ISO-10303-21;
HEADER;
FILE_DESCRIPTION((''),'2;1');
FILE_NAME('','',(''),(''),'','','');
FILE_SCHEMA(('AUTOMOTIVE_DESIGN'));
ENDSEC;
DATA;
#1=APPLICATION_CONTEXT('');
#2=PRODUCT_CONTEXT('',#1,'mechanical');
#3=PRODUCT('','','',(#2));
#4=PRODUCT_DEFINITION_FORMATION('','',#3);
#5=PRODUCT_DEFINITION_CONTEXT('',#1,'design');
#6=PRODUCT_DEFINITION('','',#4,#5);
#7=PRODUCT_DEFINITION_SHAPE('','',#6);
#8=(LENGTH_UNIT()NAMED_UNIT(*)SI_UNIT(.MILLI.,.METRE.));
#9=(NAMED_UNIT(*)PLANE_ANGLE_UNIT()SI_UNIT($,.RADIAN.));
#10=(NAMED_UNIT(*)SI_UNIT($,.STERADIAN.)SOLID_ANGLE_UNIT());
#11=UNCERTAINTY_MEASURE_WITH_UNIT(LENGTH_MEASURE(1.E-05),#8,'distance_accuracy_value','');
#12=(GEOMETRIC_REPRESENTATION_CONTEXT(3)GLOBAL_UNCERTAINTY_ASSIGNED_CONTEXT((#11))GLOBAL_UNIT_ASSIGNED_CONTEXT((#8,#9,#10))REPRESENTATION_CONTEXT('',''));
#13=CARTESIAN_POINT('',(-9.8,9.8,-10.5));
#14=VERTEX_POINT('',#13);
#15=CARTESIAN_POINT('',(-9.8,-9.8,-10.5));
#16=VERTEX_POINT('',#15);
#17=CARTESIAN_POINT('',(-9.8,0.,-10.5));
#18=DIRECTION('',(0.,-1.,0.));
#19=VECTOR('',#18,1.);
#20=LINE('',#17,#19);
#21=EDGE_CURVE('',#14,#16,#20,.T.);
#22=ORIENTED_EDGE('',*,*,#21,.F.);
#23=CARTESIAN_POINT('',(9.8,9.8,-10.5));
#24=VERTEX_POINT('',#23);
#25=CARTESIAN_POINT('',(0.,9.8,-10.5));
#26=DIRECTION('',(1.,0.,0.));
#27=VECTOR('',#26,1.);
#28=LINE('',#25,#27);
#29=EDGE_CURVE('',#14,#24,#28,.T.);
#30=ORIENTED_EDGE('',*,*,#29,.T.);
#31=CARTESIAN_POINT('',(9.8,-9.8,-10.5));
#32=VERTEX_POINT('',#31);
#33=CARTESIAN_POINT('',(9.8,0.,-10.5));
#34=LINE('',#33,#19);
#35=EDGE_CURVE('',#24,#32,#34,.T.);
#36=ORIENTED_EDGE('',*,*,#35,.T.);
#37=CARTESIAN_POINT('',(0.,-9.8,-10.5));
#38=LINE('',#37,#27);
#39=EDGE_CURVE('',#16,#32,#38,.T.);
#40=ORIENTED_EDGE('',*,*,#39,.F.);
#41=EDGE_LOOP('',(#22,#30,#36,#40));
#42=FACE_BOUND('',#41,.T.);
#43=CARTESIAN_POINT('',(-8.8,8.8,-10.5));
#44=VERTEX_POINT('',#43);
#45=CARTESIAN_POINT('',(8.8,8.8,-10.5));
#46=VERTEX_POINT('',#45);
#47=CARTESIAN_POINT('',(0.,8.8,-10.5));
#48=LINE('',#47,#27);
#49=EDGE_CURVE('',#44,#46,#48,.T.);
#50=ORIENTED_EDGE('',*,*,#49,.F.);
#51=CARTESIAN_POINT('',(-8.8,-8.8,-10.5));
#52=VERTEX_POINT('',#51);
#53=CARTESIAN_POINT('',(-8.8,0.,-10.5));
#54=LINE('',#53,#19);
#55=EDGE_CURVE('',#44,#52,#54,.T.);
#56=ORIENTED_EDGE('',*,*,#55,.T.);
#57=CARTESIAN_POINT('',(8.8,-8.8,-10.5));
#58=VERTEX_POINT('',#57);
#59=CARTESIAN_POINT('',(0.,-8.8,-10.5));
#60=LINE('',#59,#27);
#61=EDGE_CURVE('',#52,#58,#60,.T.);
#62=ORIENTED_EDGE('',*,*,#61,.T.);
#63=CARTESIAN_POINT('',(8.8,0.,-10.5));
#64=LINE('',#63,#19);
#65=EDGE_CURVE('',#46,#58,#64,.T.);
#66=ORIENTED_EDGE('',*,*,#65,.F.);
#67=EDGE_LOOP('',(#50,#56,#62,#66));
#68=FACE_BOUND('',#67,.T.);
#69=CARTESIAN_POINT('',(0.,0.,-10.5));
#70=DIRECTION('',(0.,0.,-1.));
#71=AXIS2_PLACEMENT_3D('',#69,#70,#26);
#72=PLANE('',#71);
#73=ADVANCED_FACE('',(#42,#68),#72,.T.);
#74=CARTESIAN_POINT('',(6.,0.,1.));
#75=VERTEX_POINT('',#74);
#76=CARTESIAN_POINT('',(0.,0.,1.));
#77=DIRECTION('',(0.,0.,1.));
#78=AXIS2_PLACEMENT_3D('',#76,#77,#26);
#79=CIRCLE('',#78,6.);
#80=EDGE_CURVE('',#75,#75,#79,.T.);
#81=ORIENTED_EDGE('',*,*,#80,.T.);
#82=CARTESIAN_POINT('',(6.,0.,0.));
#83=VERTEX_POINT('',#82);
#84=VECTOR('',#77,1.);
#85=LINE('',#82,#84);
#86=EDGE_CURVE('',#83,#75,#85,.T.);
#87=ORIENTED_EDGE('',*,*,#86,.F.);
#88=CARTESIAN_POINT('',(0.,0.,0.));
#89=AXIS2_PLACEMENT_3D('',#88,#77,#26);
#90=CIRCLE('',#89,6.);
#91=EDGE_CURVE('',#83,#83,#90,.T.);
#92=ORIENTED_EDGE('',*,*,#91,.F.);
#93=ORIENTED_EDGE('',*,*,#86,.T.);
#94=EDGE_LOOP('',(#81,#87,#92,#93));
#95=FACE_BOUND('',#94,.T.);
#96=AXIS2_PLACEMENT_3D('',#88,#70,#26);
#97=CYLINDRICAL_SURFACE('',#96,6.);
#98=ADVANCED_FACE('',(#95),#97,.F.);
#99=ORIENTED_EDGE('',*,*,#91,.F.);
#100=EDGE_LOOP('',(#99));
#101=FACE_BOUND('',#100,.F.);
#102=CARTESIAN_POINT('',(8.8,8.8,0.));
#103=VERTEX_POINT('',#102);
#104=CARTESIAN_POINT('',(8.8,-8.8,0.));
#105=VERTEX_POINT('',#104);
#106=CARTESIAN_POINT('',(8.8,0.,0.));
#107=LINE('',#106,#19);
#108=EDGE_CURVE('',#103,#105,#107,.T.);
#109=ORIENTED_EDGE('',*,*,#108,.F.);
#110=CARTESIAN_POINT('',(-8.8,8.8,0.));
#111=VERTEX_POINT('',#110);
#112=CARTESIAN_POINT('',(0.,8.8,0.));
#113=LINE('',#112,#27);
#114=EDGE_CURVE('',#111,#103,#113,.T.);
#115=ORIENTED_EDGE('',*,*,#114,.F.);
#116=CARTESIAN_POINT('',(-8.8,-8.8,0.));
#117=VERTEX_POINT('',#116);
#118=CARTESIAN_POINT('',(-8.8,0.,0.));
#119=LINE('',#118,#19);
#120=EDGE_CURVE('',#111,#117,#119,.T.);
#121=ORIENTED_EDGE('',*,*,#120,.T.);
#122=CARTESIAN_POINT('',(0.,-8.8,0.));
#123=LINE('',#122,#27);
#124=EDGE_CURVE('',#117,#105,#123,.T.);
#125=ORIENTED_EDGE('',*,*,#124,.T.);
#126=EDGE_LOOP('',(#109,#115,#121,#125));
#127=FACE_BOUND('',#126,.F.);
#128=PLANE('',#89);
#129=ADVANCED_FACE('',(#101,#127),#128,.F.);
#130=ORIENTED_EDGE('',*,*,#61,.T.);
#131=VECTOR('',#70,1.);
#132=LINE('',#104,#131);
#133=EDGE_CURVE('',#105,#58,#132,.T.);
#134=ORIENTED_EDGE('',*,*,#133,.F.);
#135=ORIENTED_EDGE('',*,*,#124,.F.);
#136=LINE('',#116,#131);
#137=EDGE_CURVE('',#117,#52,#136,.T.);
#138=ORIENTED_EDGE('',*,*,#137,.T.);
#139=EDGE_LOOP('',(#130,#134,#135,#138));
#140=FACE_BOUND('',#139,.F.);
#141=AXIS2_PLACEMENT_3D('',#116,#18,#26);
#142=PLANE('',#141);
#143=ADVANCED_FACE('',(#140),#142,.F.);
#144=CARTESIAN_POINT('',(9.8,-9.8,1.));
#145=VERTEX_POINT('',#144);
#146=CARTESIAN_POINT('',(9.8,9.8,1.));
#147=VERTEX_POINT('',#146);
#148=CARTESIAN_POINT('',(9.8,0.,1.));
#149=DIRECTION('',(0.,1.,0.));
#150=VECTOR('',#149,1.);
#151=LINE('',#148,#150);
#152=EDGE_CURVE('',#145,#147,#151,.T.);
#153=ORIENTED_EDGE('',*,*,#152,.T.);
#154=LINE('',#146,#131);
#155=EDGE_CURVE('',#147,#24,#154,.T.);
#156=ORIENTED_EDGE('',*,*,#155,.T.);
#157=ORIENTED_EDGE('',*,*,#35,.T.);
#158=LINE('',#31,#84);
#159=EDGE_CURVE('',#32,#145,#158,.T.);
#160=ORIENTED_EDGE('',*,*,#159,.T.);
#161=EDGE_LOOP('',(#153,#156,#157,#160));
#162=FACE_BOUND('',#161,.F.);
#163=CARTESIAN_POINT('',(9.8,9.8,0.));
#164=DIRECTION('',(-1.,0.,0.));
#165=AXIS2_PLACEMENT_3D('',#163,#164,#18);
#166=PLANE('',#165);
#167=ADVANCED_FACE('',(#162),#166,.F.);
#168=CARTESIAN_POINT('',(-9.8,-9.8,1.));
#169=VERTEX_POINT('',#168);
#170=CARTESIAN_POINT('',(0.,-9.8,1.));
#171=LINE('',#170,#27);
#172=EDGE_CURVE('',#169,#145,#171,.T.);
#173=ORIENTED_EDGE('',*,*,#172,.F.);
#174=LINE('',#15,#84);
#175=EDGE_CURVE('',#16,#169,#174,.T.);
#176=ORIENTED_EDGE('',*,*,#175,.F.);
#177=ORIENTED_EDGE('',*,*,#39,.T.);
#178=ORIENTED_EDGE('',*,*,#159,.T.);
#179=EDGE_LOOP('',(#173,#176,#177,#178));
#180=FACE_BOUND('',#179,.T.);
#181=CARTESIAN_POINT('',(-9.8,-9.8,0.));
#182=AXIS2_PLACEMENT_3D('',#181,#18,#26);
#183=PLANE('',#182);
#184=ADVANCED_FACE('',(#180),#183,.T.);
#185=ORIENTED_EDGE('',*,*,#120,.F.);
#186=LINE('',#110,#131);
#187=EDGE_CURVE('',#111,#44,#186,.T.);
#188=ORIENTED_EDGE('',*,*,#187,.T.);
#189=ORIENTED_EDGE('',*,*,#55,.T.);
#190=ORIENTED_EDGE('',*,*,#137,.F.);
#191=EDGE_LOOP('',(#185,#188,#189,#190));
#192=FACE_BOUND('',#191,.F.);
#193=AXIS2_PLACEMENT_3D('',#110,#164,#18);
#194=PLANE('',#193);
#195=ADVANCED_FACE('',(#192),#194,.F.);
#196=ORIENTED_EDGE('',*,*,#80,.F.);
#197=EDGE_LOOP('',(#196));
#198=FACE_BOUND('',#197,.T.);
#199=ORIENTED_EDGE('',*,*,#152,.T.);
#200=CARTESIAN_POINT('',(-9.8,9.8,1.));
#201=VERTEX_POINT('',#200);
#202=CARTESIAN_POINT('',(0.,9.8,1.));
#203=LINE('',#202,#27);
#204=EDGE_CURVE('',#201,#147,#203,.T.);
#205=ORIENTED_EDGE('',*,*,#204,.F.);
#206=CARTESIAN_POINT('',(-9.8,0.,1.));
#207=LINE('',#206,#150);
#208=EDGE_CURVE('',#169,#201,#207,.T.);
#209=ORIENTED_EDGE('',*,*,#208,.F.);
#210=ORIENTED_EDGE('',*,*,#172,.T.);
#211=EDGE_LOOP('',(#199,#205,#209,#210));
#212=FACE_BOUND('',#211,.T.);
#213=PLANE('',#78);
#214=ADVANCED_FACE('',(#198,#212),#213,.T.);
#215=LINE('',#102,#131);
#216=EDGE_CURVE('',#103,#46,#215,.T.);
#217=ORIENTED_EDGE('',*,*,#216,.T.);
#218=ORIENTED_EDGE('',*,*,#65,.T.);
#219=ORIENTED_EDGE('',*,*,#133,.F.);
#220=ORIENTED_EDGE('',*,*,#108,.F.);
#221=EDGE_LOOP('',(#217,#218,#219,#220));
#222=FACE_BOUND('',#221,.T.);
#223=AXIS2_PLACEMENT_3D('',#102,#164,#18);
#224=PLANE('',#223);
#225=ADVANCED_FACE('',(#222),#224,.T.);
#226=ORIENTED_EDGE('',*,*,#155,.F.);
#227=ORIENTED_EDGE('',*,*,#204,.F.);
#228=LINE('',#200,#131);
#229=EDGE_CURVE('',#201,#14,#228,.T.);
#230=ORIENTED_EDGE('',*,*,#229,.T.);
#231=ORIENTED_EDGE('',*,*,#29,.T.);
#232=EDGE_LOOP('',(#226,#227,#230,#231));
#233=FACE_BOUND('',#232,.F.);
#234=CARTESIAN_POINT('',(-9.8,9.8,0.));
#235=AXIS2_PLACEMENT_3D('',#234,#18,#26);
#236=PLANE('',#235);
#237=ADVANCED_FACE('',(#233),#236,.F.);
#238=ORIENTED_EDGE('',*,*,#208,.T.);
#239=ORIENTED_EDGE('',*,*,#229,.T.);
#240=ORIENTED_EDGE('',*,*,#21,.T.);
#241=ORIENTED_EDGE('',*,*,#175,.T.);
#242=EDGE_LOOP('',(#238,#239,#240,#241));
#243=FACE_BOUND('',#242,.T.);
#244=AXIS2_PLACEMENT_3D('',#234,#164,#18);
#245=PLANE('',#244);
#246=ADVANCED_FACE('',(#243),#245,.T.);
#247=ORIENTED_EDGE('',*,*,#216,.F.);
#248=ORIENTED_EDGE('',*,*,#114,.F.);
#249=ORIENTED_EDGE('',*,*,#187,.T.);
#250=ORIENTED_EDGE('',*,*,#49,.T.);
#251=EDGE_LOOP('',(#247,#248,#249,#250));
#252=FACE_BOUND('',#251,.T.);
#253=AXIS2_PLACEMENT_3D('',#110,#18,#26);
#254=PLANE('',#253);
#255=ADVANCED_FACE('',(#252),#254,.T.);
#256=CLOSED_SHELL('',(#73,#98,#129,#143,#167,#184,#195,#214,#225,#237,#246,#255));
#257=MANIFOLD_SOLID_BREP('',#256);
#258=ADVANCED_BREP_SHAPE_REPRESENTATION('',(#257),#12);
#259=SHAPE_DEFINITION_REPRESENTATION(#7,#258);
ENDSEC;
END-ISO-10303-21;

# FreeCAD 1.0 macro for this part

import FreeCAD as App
import Part
import Sketcher

V = App.Vector


def add_polygon(sketch, points):
    """Adds a closed chain of lines whose ends are joined by coincident constraints."""
    first, n = sketch.GeometryCount, len(points)
    for a, b in zip(points, points[1:] + points[:1]):
        sketch.addGeometry(Part.LineSegment(App.Vector(*a, 0), App.Vector(*b, 0)), False)
    for i in range(n):
        sketch.addConstraint(Sketcher.Constraint("Coincident", first + i, 2, first + (i + 1) % n, 1))

doc = App.newDocument("Part")
params = doc.addObject("Spreadsheet::Sheet", "Params")
for row, (alias, value) in enumerate([
    ("sketch1_diameter", "12 mm"),
    ("sketch1_width", "19.6 mm"),
    ("pad1_length", "1 mm"),
    ("sketch2_width", "19.6 mm"),
    ("sketch2_width2", "17.6 mm"),
    ("pad2_length", "10.5 mm"),
], start=1):
    params.set(f"A{row}", alias)
    params.set(f"B{row}", "=" + value)
    params.setAlias(f"B{row}", alias)

body = doc.addObject("PartDesign::Body", "Body")

# Sketch on XY plane
sketch1 = body.newObject("Sketcher::SketchObject", "Sketch")
sketch1.AttachmentSupport = (doc.getObject("XY_Plane"), [""])
sketch1.MapMode = "FlatFace"
add_polygon(sketch1, [(-10, 10), (-10, -10), (10, -10), (10, 10)])  # lines 0-3
sketch1.addGeometry(Part.Circle(V(0, 0, 0), V(0, 0, 1), 6), False)  # 4
sketch1.addConstraint([
    Sketcher.Constraint("Vertical", 0),
    Sketcher.Constraint("Horizontal", 1),
    Sketcher.Constraint("Vertical", 2),
    Sketcher.Constraint("Horizontal", 3),
    Sketcher.Constraint("Coincident", 4, 3, -1, 1),
    Sketcher.Constraint("Symmetric", 0, 2, 2, 2, -1, 1),
    Sketcher.Constraint("Equal", 3, 0),
    Sketcher.Constraint("Diameter", 4, 12.0),
    Sketcher.Constraint("DistanceX", 1, 1, 1, 2, 19.6),
])
sketch1.setExpression("Constraints[11]", "Params.sketch1_diameter")
sketch1.setExpression("Constraints[12]", "Params.sketch1_width")
pad1 = body.newObject("PartDesign::Pad", "Pad")
pad1.Profile = sketch1
pad1.setExpression("Length", "Params.pad1_length")

# Sketch on XY plane
sketch2 = body.newObject("Sketcher::SketchObject", "Sketch001")
sketch2.AttachmentSupport = (doc.getObject("XY_Plane"), [""])
sketch2.MapMode = "FlatFace"
add_polygon(sketch2, [(-10, -10), (-10, 10), (10, 10), (10, -10)])  # lines 0-3
add_polygon(sketch2, [(9, 9), (-9, 9), (-9, -9), (9, -9)])  # lines 4-7
sketch2.addConstraint([
    Sketcher.Constraint("Vertical", 0),
    Sketcher.Constraint("Horizontal", 1),
    Sketcher.Constraint("Vertical", 2),
    Sketcher.Constraint("Horizontal", 3),
    Sketcher.Constraint("Horizontal", 4),
    Sketcher.Constraint("Vertical", 5),
    Sketcher.Constraint("Horizontal", 6),
    Sketcher.Constraint("Vertical", 7),
    Sketcher.Constraint("Symmetric", 0, 2, 2, 2, -1, 1),
    Sketcher.Constraint("Symmetric", 4, 2, 6, 2, -1, 1),
    Sketcher.Constraint("Equal", 3, 0),
    Sketcher.Constraint("Equal", 6, 5),
    Sketcher.Constraint("DistanceX", 1, 1, 1, 2, 19.6),
    Sketcher.Constraint("DistanceX", 4, 2, 4, 1, 17.6),
])
sketch2.setExpression("Constraints[20]", "Params.sketch2_width")
sketch2.setExpression("Constraints[21]", "Params.sketch2_width2")
pad2 = body.newObject("PartDesign::Pad", "Pad001")
pad2.Profile = sketch2
pad2.setExpression("Length", "Params.pad2_length")
pad2.Reversed = True

doc.recompute()
